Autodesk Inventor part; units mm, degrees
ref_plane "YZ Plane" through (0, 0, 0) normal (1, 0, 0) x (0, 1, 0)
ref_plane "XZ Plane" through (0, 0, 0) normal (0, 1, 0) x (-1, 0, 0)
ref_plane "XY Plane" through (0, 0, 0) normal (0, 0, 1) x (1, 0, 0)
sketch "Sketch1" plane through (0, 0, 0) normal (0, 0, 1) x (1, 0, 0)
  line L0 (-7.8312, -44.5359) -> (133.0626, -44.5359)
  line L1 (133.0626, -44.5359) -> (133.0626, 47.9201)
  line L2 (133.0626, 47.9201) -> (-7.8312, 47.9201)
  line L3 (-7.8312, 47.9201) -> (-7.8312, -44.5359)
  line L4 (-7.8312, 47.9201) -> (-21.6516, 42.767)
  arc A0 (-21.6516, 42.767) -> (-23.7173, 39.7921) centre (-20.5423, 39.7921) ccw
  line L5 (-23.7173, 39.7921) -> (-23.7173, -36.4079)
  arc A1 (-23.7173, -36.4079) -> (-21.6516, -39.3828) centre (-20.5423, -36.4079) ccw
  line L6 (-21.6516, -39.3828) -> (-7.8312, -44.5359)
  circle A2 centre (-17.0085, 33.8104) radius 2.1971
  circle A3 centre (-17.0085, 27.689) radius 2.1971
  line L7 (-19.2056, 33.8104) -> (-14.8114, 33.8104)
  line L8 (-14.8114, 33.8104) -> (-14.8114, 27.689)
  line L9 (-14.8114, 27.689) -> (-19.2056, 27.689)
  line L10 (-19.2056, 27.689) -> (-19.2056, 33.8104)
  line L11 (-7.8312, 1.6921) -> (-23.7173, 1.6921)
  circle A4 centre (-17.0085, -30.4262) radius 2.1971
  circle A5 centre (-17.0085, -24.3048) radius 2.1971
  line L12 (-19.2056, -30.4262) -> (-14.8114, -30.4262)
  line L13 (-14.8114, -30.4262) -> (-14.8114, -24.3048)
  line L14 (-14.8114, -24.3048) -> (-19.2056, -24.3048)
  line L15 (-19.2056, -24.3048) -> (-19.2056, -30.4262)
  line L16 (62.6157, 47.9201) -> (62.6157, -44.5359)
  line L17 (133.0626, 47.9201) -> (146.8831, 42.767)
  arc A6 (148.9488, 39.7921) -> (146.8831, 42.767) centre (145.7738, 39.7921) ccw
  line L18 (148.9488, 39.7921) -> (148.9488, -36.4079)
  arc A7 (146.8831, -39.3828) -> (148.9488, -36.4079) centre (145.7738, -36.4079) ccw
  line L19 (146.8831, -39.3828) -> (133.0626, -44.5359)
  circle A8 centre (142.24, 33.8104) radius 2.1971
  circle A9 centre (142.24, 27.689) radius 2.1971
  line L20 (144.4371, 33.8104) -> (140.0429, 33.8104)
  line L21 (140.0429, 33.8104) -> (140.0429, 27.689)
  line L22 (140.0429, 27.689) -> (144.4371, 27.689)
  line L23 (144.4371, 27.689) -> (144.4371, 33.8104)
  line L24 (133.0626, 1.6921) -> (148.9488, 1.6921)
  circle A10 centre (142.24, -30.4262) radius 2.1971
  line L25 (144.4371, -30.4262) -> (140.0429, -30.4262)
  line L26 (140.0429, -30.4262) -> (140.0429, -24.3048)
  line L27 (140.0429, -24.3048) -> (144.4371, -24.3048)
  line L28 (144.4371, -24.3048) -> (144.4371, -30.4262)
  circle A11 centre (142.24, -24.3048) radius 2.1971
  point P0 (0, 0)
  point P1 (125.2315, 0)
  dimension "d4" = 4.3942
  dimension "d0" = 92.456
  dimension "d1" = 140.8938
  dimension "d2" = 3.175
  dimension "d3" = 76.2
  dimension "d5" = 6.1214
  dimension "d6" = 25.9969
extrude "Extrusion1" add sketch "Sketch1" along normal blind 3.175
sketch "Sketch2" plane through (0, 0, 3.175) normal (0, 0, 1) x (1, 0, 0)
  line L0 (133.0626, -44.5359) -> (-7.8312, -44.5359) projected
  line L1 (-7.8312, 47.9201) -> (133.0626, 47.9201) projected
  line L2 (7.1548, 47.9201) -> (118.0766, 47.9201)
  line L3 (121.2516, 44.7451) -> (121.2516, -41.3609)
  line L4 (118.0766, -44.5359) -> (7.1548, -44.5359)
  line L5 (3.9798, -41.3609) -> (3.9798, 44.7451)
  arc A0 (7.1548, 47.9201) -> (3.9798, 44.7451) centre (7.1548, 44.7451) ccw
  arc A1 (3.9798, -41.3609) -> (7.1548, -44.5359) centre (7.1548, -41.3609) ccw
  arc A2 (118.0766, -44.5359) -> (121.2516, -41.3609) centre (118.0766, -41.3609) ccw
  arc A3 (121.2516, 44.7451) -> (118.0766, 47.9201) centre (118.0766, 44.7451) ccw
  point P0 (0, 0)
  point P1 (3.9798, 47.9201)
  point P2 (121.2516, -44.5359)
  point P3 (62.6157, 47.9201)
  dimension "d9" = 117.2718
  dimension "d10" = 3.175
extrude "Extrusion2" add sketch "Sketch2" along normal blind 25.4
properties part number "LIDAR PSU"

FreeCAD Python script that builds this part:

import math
import FreeCAD as App
import Part
import Sketcher
Q = App.Units.Quantity

doc = App.newDocument("Part")
body = doc.addObject("PartDesign::Body", "Body")

# Sketch on XY plane
sketch1 = body.newObject("Sketcher::SketchObject", "Sketch")
sketch1.AttachmentSupport = (doc.getObject("XY_Plane"), [""])
sketch1.MapMode = "FlatFace"
sketch1.addGeometry(Part.LineSegment(App.Vector(-7.8312, 47.9201, 0), App.Vector(-21.6516, 42.767, 0)), False)
sketch1.addGeometry(Part.ArcOfCircle(Part.Circle(App.Vector(-20.5423, 39.7921, 0), App.Vector(0, 0, 1), 3.174992), math.radians(110.449806), math.radians(180)), False)
sketch1.addGeometry(Part.LineSegment(App.Vector(-23.7173, 39.7921, 0), App.Vector(-23.7173, -36.4079, 0)), False)
sketch1.addGeometry(Part.ArcOfCircle(Part.Circle(App.Vector(-20.5423, -36.4079, 0), App.Vector(0, 0, 1), 3.175), math.radians(180), math.radians(249.550194)), False)
sketch1.addGeometry(Part.LineSegment(App.Vector(-21.6516, -39.3828, 0), App.Vector(-7.8312, -44.5359, 0)), False)
sketch1.addGeometry(Part.LineSegment(App.Vector(-7.8312, -44.5359, 0), App.Vector(133.0626, -44.5359, 0)), False)
sketch1.addGeometry(Part.LineSegment(App.Vector(133.0626, -44.5359, 0), App.Vector(146.8831, -39.3828, 0)), False)
sketch1.addGeometry(Part.ArcOfCircle(Part.Circle(App.Vector(145.7738, -36.4079, 0), App.Vector(0, 0, 1), 3.174992), math.radians(-69.550194), math.radians(0)), False)
sketch1.addGeometry(Part.LineSegment(App.Vector(148.9488, -36.4079, 0), App.Vector(148.9488, 39.7921, 0)), False)
sketch1.addGeometry(Part.ArcOfCircle(Part.Circle(App.Vector(145.7738, 39.7921, 0), App.Vector(0, 0, 1), 3.175), math.radians(0), math.radians(69.550194)), False)
sketch1.addGeometry(Part.LineSegment(App.Vector(146.8831, 42.767, 0), App.Vector(133.0626, 47.9201, 0)), False)
sketch1.addGeometry(Part.LineSegment(App.Vector(133.0626, 47.9201, 0), App.Vector(-7.8312, 47.9201, 0)), False)
sketch1.addGeometry(Part.ArcOfCircle(Part.Circle(App.Vector(-17.0085, -30.4262, 0), App.Vector(0, 0, 1), 2.1971), math.radians(180), math.radians(360)), False)
sketch1.addGeometry(Part.LineSegment(App.Vector(-19.2056, -30.4262, 0), App.Vector(-19.2056, -24.3048, 0)), False)
sketch1.addGeometry(Part.ArcOfCircle(Part.Circle(App.Vector(-17.0085, -24.3048, 0), App.Vector(0, 0, 1), 2.1971), math.radians(0), math.radians(180)), False)
sketch1.addGeometry(Part.LineSegment(App.Vector(-14.8114, -24.3048, 0), App.Vector(-14.8114, -30.4262, 0)), False)
sketch1.addGeometry(Part.ArcOfCircle(Part.Circle(App.Vector(-17.0085, 27.689, 0), App.Vector(0, 0, 1), 2.1971), math.radians(180), math.radians(360)), False)
sketch1.addGeometry(Part.LineSegment(App.Vector(-19.2056, 27.689, 0), App.Vector(-19.2056, 33.8104, 0)), False)
sketch1.addGeometry(Part.ArcOfCircle(Part.Circle(App.Vector(-17.0085, 33.8104, 0), App.Vector(0, 0, 1), 2.1971), math.radians(0), math.radians(180)), False)
sketch1.addGeometry(Part.LineSegment(App.Vector(-14.8114, 33.8104, 0), App.Vector(-14.8114, 27.689, 0)), False)
sketch1.addGeometry(Part.LineSegment(App.Vector(144.4371, 33.8104, 0), App.Vector(144.4371, 27.689, 0)), False)
sketch1.addGeometry(Part.ArcOfCircle(Part.Circle(App.Vector(142.24, 27.689, 0), App.Vector(0, 0, 1), 2.1971), math.radians(180), math.radians(360)), False)
sketch1.addGeometry(Part.LineSegment(App.Vector(140.0429, 27.689, 0), App.Vector(140.0429, 33.8104, 0)), False)
sketch1.addGeometry(Part.ArcOfCircle(Part.Circle(App.Vector(142.24, 33.8104, 0), App.Vector(0, 0, 1), 2.1971), math.radians(0), math.radians(180)), False)
sketch1.addGeometry(Part.ArcOfCircle(Part.Circle(App.Vector(142.24, -30.4262, 0), App.Vector(0, 0, 1), 2.1971), math.radians(180), math.radians(360)), False)
sketch1.addGeometry(Part.LineSegment(App.Vector(140.0429, -30.4262, 0), App.Vector(140.0429, -24.3048, 0)), False)
sketch1.addGeometry(Part.ArcOfCircle(Part.Circle(App.Vector(142.24, -24.3048, 0), App.Vector(0, 0, 1), 2.1971), math.radians(0), math.radians(180)), False)
sketch1.addGeometry(Part.LineSegment(App.Vector(144.4371, -24.3048, 0), App.Vector(144.4371, -30.4262, 0)), False)
sketch1.addConstraint(Sketcher.Constraint("Coincident", 0, 2, 1, 1))
sketch1.addConstraint(Sketcher.Constraint("Coincident", 1, 2, 2, 1))
sketch1.addConstraint(Sketcher.Constraint("Coincident", 2, 2, 3, 1))
sketch1.addConstraint(Sketcher.Constraint("Coincident", 3, 2, 4, 1))
sketch1.addConstraint(Sketcher.Constraint("Coincident", 4, 2, 5, 1))
sketch1.addConstraint(Sketcher.Constraint("Coincident", 5, 2, 6, 1))
sketch1.addConstraint(Sketcher.Constraint("Coincident", 6, 2, 7, 1))
sketch1.addConstraint(Sketcher.Constraint("Coincident", 7, 2, 8, 1))
sketch1.addConstraint(Sketcher.Constraint("Coincident", 8, 2, 9, 1))
sketch1.addConstraint(Sketcher.Constraint("Coincident", 9, 2, 10, 1))
sketch1.addConstraint(Sketcher.Constraint("Coincident", 10, 2, 11, 1))
sketch1.addConstraint(Sketcher.Constraint("Coincident", 11, 2, 0, 1))
sketch1.addConstraint(Sketcher.Constraint("Coincident", 12, 1, 13, 1))
sketch1.addConstraint(Sketcher.Constraint("Coincident", 13, 2, 14, 2))
sketch1.addConstraint(Sketcher.Constraint("Coincident", 14, 1, 15, 1))
sketch1.addConstraint(Sketcher.Constraint("Coincident", 15, 2, 12, 2))
sketch1.addConstraint(Sketcher.Constraint("Coincident", 16, 1, 17, 1))
sketch1.addConstraint(Sketcher.Constraint("Coincident", 17, 2, 18, 2))
sketch1.addConstraint(Sketcher.Constraint("Coincident", 18, 1, 19, 1))
sketch1.addConstraint(Sketcher.Constraint("Coincident", 19, 2, 16, 2))
sketch1.addConstraint(Sketcher.Constraint("Coincident", 20, 2, 21, 2))
sketch1.addConstraint(Sketcher.Constraint("Coincident", 21, 1, 22, 1))
sketch1.addConstraint(Sketcher.Constraint("Coincident", 22, 2, 23, 2))
sketch1.addConstraint(Sketcher.Constraint("Coincident", 23, 1, 20, 1))
sketch1.addConstraint(Sketcher.Constraint("Coincident", 24, 1, 25, 1))
sketch1.addConstraint(Sketcher.Constraint("Coincident", 25, 2, 26, 2))
sketch1.addConstraint(Sketcher.Constraint("Coincident", 26, 1, 27, 1))
sketch1.addConstraint(Sketcher.Constraint("Coincident", 27, 2, 24, 2))
sketch1.addConstraint(Sketcher.Constraint("Vertical", 2))
sketch1.addConstraint(Sketcher.Constraint("Horizontal", 5))
sketch1.addConstraint(Sketcher.Constraint("Vertical", 8))
sketch1.addConstraint(Sketcher.Constraint("Horizontal", 11))
sketch1.addConstraint(Sketcher.Constraint("Vertical", 13))
sketch1.addConstraint(Sketcher.Constraint("Vertical", 15))
sketch1.addConstraint(Sketcher.Constraint("Vertical", 17))
sketch1.addConstraint(Sketcher.Constraint("Vertical", 19))
sketch1.addConstraint(Sketcher.Constraint("Vertical", 20))
sketch1.addConstraint(Sketcher.Constraint("Vertical", 22))
sketch1.addConstraint(Sketcher.Constraint("Vertical", 25))
sketch1.addConstraint(Sketcher.Constraint("Vertical", 27))
sketch1.addConstraint(Sketcher.Constraint("DistanceY", 2, 2, 2, 1, Q("3 in")))
sketch1.addConstraint(Sketcher.Constraint("DistanceY", 8, 1, 8, 2, Q("3 in")))
sketch1.addConstraint(Sketcher.Constraint("Radius", 1, Q("0.125 in")))
sketch1.addConstraint(Sketcher.Constraint("Radius", 3, Q("0.125 in")))
sketch1.addConstraint(Sketcher.Constraint("Radius", 7, Q("0.125 in")))
sketch1.addConstraint(Sketcher.Constraint("Radius", 9, Q("0.125 in")))
sketch1.addConstraint(Sketcher.Constraint("DistanceY", 3, 3, 1, 3, Q("3 in")))
sketch1.addConstraint(Sketcher.Constraint("DistanceY", 7, 3, 1, 3, Q("3 in")))
sketch1.addConstraint(Sketcher.Constraint("DistanceY", 7, 3, 9, 3, Q("3 in")))
sketch1.addConstraint(Sketcher.Constraint("Radius", 12, Q("0.0865 in")))
sketch1.addConstraint(Sketcher.Constraint("Radius", 16, Q("0.0865 in")))
sketch1.addConstraint(Sketcher.Constraint("Radius", 21, Q("0.0865 in")))
sketch1.addConstraint(Sketcher.Constraint("Radius", 24, Q("0.0865 in")))
sketch1.addConstraint(Sketcher.Constraint("DistanceX", 5, 1, 5, 2, Q("5.547 in")))
sketch1.addConstraint(Sketcher.Constraint("DistanceX", 11, 2, 11, 1, Q("5.547 in")))
sketch1.addConstraint(Sketcher.Constraint("DistanceY", 13, 1, 13, 2, Q("0.241 in")))
sketch1.addConstraint(Sketcher.Constraint("DistanceY", 15, 2, 15, 1, Q("0.241 in")))
sketch1.addConstraint(Sketcher.Constraint("DistanceY", 17, 1, 17, 2, Q("0.241 in")))
sketch1.addConstraint(Sketcher.Constraint("DistanceY", 19, 2, 19, 1, Q("0.241 in")))
sketch1.addConstraint(Sketcher.Constraint("DistanceY", 20, 2, 20, 1, Q("0.241 in")))
sketch1.addConstraint(Sketcher.Constraint("DistanceY", 22, 1, 22, 2, Q("0.241 in")))
sketch1.addConstraint(Sketcher.Constraint("DistanceY", 25, 1, 25, 2, Q("0.241 in")))
sketch1.addConstraint(Sketcher.Constraint("DistanceY", 27, 2, 27, 1, Q("0.241 in")))
sketch1.addConstraint(Sketcher.Constraint("DistanceY", 12, 3, 14, 3, Q("0.241 in")))
sketch1.addConstraint(Sketcher.Constraint("DistanceY", 16, 3, 18, 3, Q("0.241 in")))
sketch1.addConstraint(Sketcher.Constraint("DistanceY", 21, 3, 18, 3, Q("0.241 in")))
sketch1.addConstraint(Sketcher.Constraint("DistanceY", 21, 3, 23, 3, Q("0.241 in")))
sketch1.addConstraint(Sketcher.Constraint("DistanceY", 24, 3, 26, 3, Q("0.241 in")))
sketch1.addConstraint(Sketcher.Constraint("DistanceY", 12, 1, 14, 3, Q("0.241 in")))
sketch1.addConstraint(Sketcher.Constraint("DistanceY", 12, 3, 14, 1, Q("0.241 in")))
sketch1.addConstraint(Sketcher.Constraint("DistanceY", 16, 1, 18, 3, Q("0.241 in")))
sketch1.addConstraint(Sketcher.Constraint("DistanceY", 16, 3, 18, 1, Q("0.241 in")))
sketch1.addConstraint(Sketcher.Constraint("DistanceY", 20, 2, 23, 3, Q("0.241 in")))
sketch1.addConstraint(Sketcher.Constraint("DistanceY", 21, 1, 23, 3, Q("0.241 in")))
sketch1.addConstraint(Sketcher.Constraint("DistanceY", 24, 1, 26, 3, Q("0.241 in")))
sketch1.addConstraint(Sketcher.Constraint("DistanceY", 24, 3, 26, 1, Q("0.241 in")))
sketch1.addConstraint(Sketcher.Constraint("DistanceX", -1, 1, 21, 3, Q("5.6 in")))
sketch1.addConstraint(Sketcher.Constraint("DistanceX", -1, 1, 24, 3, Q("5.6 in")))
sketch1.addConstraint(Sketcher.Constraint("DistanceY", 4, 2, 3, 3, Q("0.32 in")))
sketch1.addConstraint(Sketcher.Constraint("DistanceY", 4, 2, 2, 2, Q("0.32 in")))
sketch1.addConstraint(Sketcher.Constraint("DistanceY", 5, 2, 7, 2, Q("0.32 in")))
sketch1.addConstraint(Sketcher.Constraint("DistanceY", 9, 3, 10, 2, Q("0.32 in")))
sketch1.addConstraint(Sketcher.Constraint("DistanceY", 14, 3, 16, 3, Q("2.047 in")))
sketch1.addConstraint(Sketcher.Constraint("DistanceY", 24, 3, 21, 3, Q("2.288 in")))
sketch1.addConstraint(Sketcher.Constraint("DistanceY", 14, 3, 0, 2, Q("2.640622 in")))
sketch1.addConstraint(Sketcher.Constraint("DistanceY", 3, 2, 16, 3, Q("2.640622 in")))
sketch1.addConstraint(Sketcher.Constraint("DistanceY", 6, 2, 21, 3, Q("2.640622 in")))
sketch1.addConstraint(Sketcher.Constraint("DistanceY", 26, 3, 9, 2, Q("2.640622 in")))
sketch1.addConstraint(Sketcher.Constraint("Distance", 0, Q("0.5807 in")))
sketch1.addConstraint(Sketcher.Constraint("Distance", 4, Q("0.5807 in")))
sketch1.addConstraint(Sketcher.Constraint("Distance", 6, Q("0.5807 in")))
sketch1.addConstraint(Sketcher.Constraint("Distance", 10, Q("0.5807 in")))
sketch1.addConstraint(Sketcher.Constraint("DistanceY", 3, 2, -1, 1, Q("1.5505 in")))
sketch1.addConstraint(Sketcher.Constraint("DistanceX", -1, 1, 6, 2, Q("5.7828 in")))
sketch1.addConstraint(Sketcher.Constraint("DistanceX", 0, 2, 18, 3, Q("0.1828 in")))
sketch1.addConstraint(Sketcher.Constraint("DistanceX", 0, 2, 14, 3, Q("0.1828 in")))
pad1 = body.newObject("PartDesign::Pad", "Pad")
pad1.Profile = sketch1
pad1.Length = Q("0.125 in")

# Sketch on XY plane
sketch2 = body.newObject("Sketcher::SketchObject", "Sketch001")
sketch2.AttachmentSupport = (doc.getObject("XY_Plane"), [""])
sketch2.MapMode = "FlatFace"
sketch2.AttachmentOffset = App.Placement(App.Vector(0, 0, 0.125 * 25.4), App.Rotation())
sketch2.addGeometry(Part.LineSegment(App.Vector(7.2, -44.5, 0), App.Vector(118.1, -44.5, 0)), False)
sketch2.addGeometry(Part.ArcOfCircle(Part.Circle(App.Vector(118.1, -41.4, 0), App.Vector(0, 0, 1), 3.2), math.radians(-90), math.radians(0)), False)
sketch2.addGeometry(Part.LineSegment(App.Vector(121.3, -41.4, 0), App.Vector(121.3, 44.7, 0)), False)
sketch2.addGeometry(Part.ArcOfCircle(Part.Circle(App.Vector(118.1, 44.7, 0), App.Vector(0, 0, 1), 3.2), math.radians(0), math.radians(90)), False)
sketch2.addGeometry(Part.LineSegment(App.Vector(118.1, 47.9, 0), App.Vector(7.2, 47.9, 0)), False)
sketch2.addGeometry(Part.ArcOfCircle(Part.Circle(App.Vector(7.2, 44.7, 0), App.Vector(0, 0, 1), 3.2), math.radians(90), math.radians(180)), False)
sketch2.addGeometry(Part.LineSegment(App.Vector(4, 44.7, 0), App.Vector(4, -41.4, 0)), False)
sketch2.addGeometry(Part.ArcOfCircle(Part.Circle(App.Vector(7.2, -41.4, 0), App.Vector(0, 0, 1), 3.2), math.radians(180), math.radians(270)), False)
sketch2.addConstraint(Sketcher.Constraint("Tangent", 0, 2, 1, 1))
sketch2.addConstraint(Sketcher.Constraint("Tangent", 1, 2, 2, 1))
sketch2.addConstraint(Sketcher.Constraint("Tangent", 2, 2, 3, 1))
sketch2.addConstraint(Sketcher.Constraint("Tangent", 3, 2, 4, 1))
sketch2.addConstraint(Sketcher.Constraint("Tangent", 4, 2, 5, 1))
sketch2.addConstraint(Sketcher.Constraint("Tangent", 5, 2, 6, 1))
sketch2.addConstraint(Sketcher.Constraint("Tangent", 6, 2, 7, 1))
sketch2.addConstraint(Sketcher.Constraint("Tangent", 7, 2, 0, 1))
sketch2.addConstraint(Sketcher.Constraint("Horizontal", 0))
sketch2.addConstraint(Sketcher.Constraint("Vertical", 2))
sketch2.addConstraint(Sketcher.Constraint("Horizontal", 4))
sketch2.addConstraint(Sketcher.Constraint("Vertical", 6))
sketch2.addConstraint(Sketcher.Constraint("Equal", 1, 3))
sketch2.addConstraint(Sketcher.Constraint("Equal", 3, 5))
sketch2.addConstraint(Sketcher.Constraint("Equal", 5, 7))
sketch2.addConstraint(Sketcher.Constraint("Radius", 1, Q("0.125 in")))
sketch2.addConstraint(Sketcher.Constraint("DistanceY", 2, 1, 2, 2, Q("3.39 in")))
sketch2.addConstraint(Sketcher.Constraint("DistanceX", 0, 1, 0, 2, Q("4.367 in")))
sketch2.addConstraint(Sketcher.Constraint("DistanceX", -1, 1, 1, 3, 118.0766))
sketch2.addConstraint(Sketcher.Constraint("DistanceY", 1, 3, -1, 1, 41.361))
pad2 = body.newObject("PartDesign::Pad", "Pad001")
pad2.Profile = sketch2
pad2.Length = Q("1 in")

doc.recompute()
